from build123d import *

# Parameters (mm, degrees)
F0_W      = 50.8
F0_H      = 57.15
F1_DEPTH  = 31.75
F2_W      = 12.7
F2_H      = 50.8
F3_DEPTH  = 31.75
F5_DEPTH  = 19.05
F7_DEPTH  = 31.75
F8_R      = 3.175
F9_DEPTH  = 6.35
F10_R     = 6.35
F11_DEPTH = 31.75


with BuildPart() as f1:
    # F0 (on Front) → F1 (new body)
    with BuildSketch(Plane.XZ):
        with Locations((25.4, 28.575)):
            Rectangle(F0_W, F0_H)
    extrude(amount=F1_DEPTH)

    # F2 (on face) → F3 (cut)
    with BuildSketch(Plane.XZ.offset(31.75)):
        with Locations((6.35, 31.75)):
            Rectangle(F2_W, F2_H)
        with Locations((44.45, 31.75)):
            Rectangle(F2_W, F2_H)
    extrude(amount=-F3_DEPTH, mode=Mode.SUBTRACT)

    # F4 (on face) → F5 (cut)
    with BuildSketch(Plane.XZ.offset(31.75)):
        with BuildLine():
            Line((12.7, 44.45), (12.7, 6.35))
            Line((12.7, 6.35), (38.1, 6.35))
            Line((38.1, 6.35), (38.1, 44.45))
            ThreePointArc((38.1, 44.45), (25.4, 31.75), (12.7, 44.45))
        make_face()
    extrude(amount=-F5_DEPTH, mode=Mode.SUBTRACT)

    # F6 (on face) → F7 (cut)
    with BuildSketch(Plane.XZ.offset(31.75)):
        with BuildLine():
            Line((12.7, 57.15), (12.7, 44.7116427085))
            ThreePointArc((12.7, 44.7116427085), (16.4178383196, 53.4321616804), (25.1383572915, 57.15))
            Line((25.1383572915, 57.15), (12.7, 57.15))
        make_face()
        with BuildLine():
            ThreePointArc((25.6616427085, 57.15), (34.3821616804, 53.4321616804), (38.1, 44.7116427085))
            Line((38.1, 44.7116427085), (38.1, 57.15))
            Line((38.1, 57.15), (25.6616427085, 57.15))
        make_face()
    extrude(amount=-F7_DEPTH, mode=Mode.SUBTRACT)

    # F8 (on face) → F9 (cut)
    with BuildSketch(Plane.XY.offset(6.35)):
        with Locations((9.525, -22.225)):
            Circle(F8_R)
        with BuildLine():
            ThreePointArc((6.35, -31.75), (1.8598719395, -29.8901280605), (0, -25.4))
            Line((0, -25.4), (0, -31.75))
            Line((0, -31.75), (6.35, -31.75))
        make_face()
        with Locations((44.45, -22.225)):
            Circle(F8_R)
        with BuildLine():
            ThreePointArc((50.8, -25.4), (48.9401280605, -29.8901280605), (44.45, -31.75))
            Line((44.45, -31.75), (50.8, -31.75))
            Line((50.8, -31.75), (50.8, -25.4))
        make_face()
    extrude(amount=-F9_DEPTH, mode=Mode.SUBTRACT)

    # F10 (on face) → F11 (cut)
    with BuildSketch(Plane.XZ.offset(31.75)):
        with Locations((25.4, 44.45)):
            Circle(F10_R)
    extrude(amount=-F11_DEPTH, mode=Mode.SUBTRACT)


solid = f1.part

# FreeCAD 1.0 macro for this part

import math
import FreeCAD as App
import Part
import Sketcher
from FreeCAD import Vector
Q = App.Units.Quantity


def add_polygon(sketch, points):
    """Adds a closed chain of lines whose ends are joined by coincident constraints."""
    first, n = sketch.GeometryCount, len(points)
    for a, b in zip(points, points[1:] + points[:1]):
        sketch.addGeometry(Part.LineSegment(App.Vector(*a, 0), App.Vector(*b, 0)), False)
    for i in range(n):
        sketch.addConstraint(Sketcher.Constraint("Coincident", first + i, 2, first + (i + 1) % n, 1))

doc = App.newDocument("Part")
body = doc.addObject("PartDesign::Body", "Body")

# Sketch on XZ plane
sketch1 = doc.addObject("Sketcher::SketchObject", "Sketch")
body.addObject(sketch1)
sketch1.AttachmentSupport = (doc.XZ_Plane, [""])
sketch1.MapMode = "FlatFace"
add_polygon(sketch1, [(0, 57), (0, 0), (51, 0), (51, 57)])  # lines 0-3
sketch1.addConstraint([
    Sketcher.Constraint("Vertical", 0),
    Sketcher.Constraint("Horizontal", 1),
    Sketcher.Constraint("Vertical", 2),
    Sketcher.Constraint("Horizontal", 3),
    Sketcher.Constraint("Coincident", 0, 2, -1, 1),
    Sketcher.Constraint("DistanceX", 1, 1, 1, 2, Q("2 in")),
    Sketcher.Constraint("DistanceY", 0, 2, 0, 1, Q("2.25 in")),
])
pad1 = doc.addObject("PartDesign::Pad", "Pad")
body.addObject(pad1)
pad1.Profile = sketch1
pad1.Length = Q("1.25 in")

# Sketch on XZ plane
sketch2 = doc.addObject("Sketcher::SketchObject", "Sketch001")
body.addObject(sketch2)
sketch2.AttachmentSupport = (doc.XZ_Plane, [""])
sketch2.MapMode = "FlatFace"
sketch2.AttachmentOffset = App.Placement(Vector(0, 0, 1.25 * 25.4), App.Rotation())
add_polygon(sketch2, [(0, 57), (0, 6), (13, 6), (13, 57)])  # lines 0-3
add_polygon(sketch2, [(38, 57), (38, 6), (51, 6), (51, 57)])  # lines 4-7
sketch2.addConstraint([
    Sketcher.Constraint("Vertical", 0),
    Sketcher.Constraint("Horizontal", 1),
    Sketcher.Constraint("Vertical", 2),
    Sketcher.Constraint("Horizontal", 3),
    Sketcher.Constraint("Vertical", 4),
    Sketcher.Constraint("Horizontal", 5),
    Sketcher.Constraint("Vertical", 6),
    Sketcher.Constraint("Horizontal", 7),
    Sketcher.Constraint("PointOnObject", 0, 2, -2),
    Sketcher.Constraint("Horizontal", 1, 2, 4, 2),
    Sketcher.Constraint("Horizontal", 3, 2, 6, 2),
    Sketcher.Constraint("Equal", 3, 5),
    Sketcher.Constraint("DistanceY", 0, 2, 0, 1, Q("2 in")),
    Sketcher.Constraint("DistanceX", 1, 1, 1, 2, Q("0.5 in")),
    Sketcher.Constraint("DistanceX", -1, 1, 5, 2, Q("2 in")),
    Sketcher.Constraint("DistanceY", -1, 1, 0, 2, Q("0.25 in")),
])
pocket1 = doc.addObject("PartDesign::Pocket", "Pocket")
body.addObject(pocket1)
pocket1.Profile = sketch2
pocket1.Length = Q("1.25 in")

# Sketch on XZ plane
sketch3 = doc.addObject("Sketcher::SketchObject", "Sketch002")
body.addObject(sketch3)
sketch3.AttachmentSupport = (doc.XZ_Plane, [""])
sketch3.MapMode = "FlatFace"
sketch3.AttachmentOffset = App.Placement(Vector(0, 0, 1.25 * 25.4), App.Rotation())
sketch3.addGeometry([
    Part.LineSegment(Vector(13, 44, 0), Vector(13, 6, 0)),
    Part.LineSegment(Vector(13, 6, 0), Vector(38, 6, 0)),
    Part.LineSegment(Vector(38, 6, 0), Vector(38, 44, 0)),
    Part.ArcOfCircle(Part.Circle(Vector(25, 44, 0), Vector(0, 0, 1), 13), math.radians(180), math.radians(360)),
], False)
sketch3.addConstraint([
    Sketcher.Constraint("Coincident", 0, 2, 1, 1),
    Sketcher.Constraint("Coincident", 1, 2, 2, 1),
    Sketcher.Constraint("Tangent", 2, 2, 3, 2),
    Sketcher.Constraint("Tangent", 3, 1, 0, 1),
    Sketcher.Constraint("Vertical", 0),
    Sketcher.Constraint("Horizontal", 1),
    Sketcher.Constraint("Vertical", 2),
    Sketcher.Constraint("Radius", 3, Q("0.5 in")),
    Sketcher.Constraint("DistanceY", 0, 2, 0, 1, Q("1.5 in")),
    Sketcher.Constraint("DistanceX", -1, 1, 3, 3, Q("1 in")),
    Sketcher.Constraint("DistanceY", -1, 1, 3, 3, Q("1.75 in")),
])
pocket2 = doc.addObject("PartDesign::Pocket", "Pocket001")
body.addObject(pocket2)
pocket2.Profile = sketch3
pocket2.Length = Q("0.75 in")

# Sketch on XZ plane
sketch4 = doc.addObject("Sketcher::SketchObject", "Sketch003")
body.addObject(sketch4)
sketch4.AttachmentSupport = (doc.XZ_Plane, [""])
sketch4.MapMode = "FlatFace"
sketch4.AttachmentOffset = App.Placement(Vector(0, 0, 1.25 * 25.4), App.Rotation())
sketch4.addGeometry([
    Part.LineSegment(Vector(13, 57, 0), Vector(13, 45, 0)),  # 0
    Part.ArcOfCircle(Part.Circle(Vector(25, 44, 0), Vector(0, 0, 1), 13), math.radians(91), math.radians(179)),  # 1
    Part.LineSegment(Vector(25, 57, 0), Vector(13, 57, 0)),  # 2
    Part.ArcOfCircle(Part.Circle(Vector(25, 44, 0), Vector(0, 0, 1), 13), math.radians(1), math.radians(89)),  # 3
    Part.LineSegment(Vector(38, 45, 0), Vector(38, 57, 0)),  # 4
    Part.LineSegment(Vector(38, 57, 0), Vector(26, 57, 0)),  # 5
], False)
sketch4.addConstraint([
    Sketcher.Constraint("Coincident", 0, 2, 1, 2),
    Sketcher.Constraint("Coincident", 1, 1, 2, 1),
    Sketcher.Constraint("Coincident", 2, 2, 0, 1),
    Sketcher.Constraint("Coincident", 3, 1, 4, 1),
    Sketcher.Constraint("Coincident", 4, 2, 5, 1),
    Sketcher.Constraint("Coincident", 5, 2, 3, 2),
    Sketcher.Constraint("Vertical", 0),
    Sketcher.Constraint("Horizontal", 2),
    Sketcher.Constraint("Vertical", 4),
    Sketcher.Constraint("Horizontal", 5),
    Sketcher.Constraint("Coincident", 3, 3, 1, 3),
    Sketcher.Constraint("Equal", 1, 3),
    Sketcher.Constraint("Horizontal", 0, 2, 3, 1),
    Sketcher.Constraint("Horizontal", 2, 2, 4, 2),
    Sketcher.Constraint("Equal", 5, 0),
    Sketcher.Constraint("DistanceX", -1, 1, 1, 3, Q("1 in")),
    Sketcher.Constraint("DistanceX", 0, 2, 3, 1, Q("1 in")),
    Sketcher.Constraint("DistanceY", -1, 1, 1, 3, Q("1.75 in")),
    Sketcher.Constraint("Radius", 1, Q("12.702695 mm")),
])
pocket3 = doc.addObject("PartDesign::Pocket", "Pocket002")
body.addObject(pocket3)
pocket3.Profile = sketch4
pocket3.Length = Q("1.25 in")

# Sketch on XY plane
sketch5 = doc.addObject("Sketcher::SketchObject", "Sketch004")
body.addObject(sketch5)
sketch5.AttachmentSupport = (doc.XY_Plane, [""])
sketch5.MapMode = "FlatFace"
sketch5.AttachmentOffset = App.Placement(Vector(0, 0, 0.25 * 25.4), App.Rotation())
sketch5.addGeometry([
    Part.Circle(Vector(9.5, -22.2, 0), Vector(0, 0, 1), 3.2),  # 0
    Part.ArcOfCircle(Part.Circle(Vector(6.3, -25.4, 0), Vector(0, 0, 1), 6.3), math.radians(180), math.radians(270)),  # 1
    Part.LineSegment(Vector(0, -25.4, 0), Vector(0, -31.8, 0)),  # 2
    Part.LineSegment(Vector(0, -31.8, 0), Vector(6.3, -31.8, 0)),  # 3
    Part.Circle(Vector(44.5, -22.2, 0), Vector(0, 0, 1), 3.2),  # 4
    Part.ArcOfCircle(Part.Circle(Vector(44.5, -25.4, 0), Vector(0, 0, 1), 6.3), math.radians(-90), math.radians(0)),  # 5
    Part.LineSegment(Vector(44.5, -31.8, 0), Vector(50.8, -31.8, 0)),  # 6
    Part.LineSegment(Vector(50.8, -31.8, 0), Vector(50.8, -25.4, 0)),  # 7
], False)
sketch5.addConstraint([
    Sketcher.Constraint("Tangent", 1, 1, 2, 1),
    Sketcher.Constraint("Coincident", 2, 2, 3, 1),
    Sketcher.Constraint("Tangent", 3, 2, 1, 2),
    Sketcher.Constraint("Tangent", 5, 1, 6, 1),
    Sketcher.Constraint("Coincident", 6, 2, 7, 1),
    Sketcher.Constraint("Tangent", 7, 2, 5, 2),
    Sketcher.Constraint("Vertical", 2),
    Sketcher.Constraint("Horizontal", 3),
    Sketcher.Constraint("Horizontal", 6),
    Sketcher.Constraint("Vertical", 7),
    Sketcher.Constraint("Equal", 0, 4),
    Sketcher.Constraint("Equal", 1, 5),
    Sketcher.Constraint("PointOnObject", 1, 1, -2),
    Sketcher.Constraint("Horizontal", 0, 3, 4, 3),
    Sketcher.Constraint("Horizontal", 1, 3, 5, 3),
    Sketcher.Constraint("Vertical", 4, 3, 5, 3),
    Sketcher.Constraint("Diameter", 0, Q("0.25 in")),
    Sketcher.Constraint("Radius", 1, Q("0.25 in")),
    Sketcher.Constraint("DistanceY", 1, 3, -1, 1, Q("1 in")),
    Sketcher.Constraint("DistanceX", -1, 1, 6, 2, Q("2 in")),
    Sketcher.Constraint("DistanceX", -1, 1, 0, 3, Q("0.375 in")),
    Sketcher.Constraint("DistanceY", 0, 3, -1, 1, Q("0.875 in")),
])
pocket4 = doc.addObject("PartDesign::Pocket", "Pocket003")
body.addObject(pocket4)
pocket4.Profile = sketch5
pocket4.Length = Q("0.25 in")

# Sketch on XZ plane
sketch6 = doc.addObject("Sketcher::SketchObject", "Sketch005")
body.addObject(sketch6)
sketch6.AttachmentSupport = (doc.XZ_Plane, [""])
sketch6.MapMode = "FlatFace"
sketch6.AttachmentOffset = App.Placement(Vector(0, 0, 1.25 * 25.4), App.Rotation())
sketch6.addGeometry(Part.Circle(Vector(25, 44, 0), Vector(0, 0, 1), 6), False)
sketch6.addConstraint([
    Sketcher.Constraint("Diameter", 0, Q("0.5 in")),
    Sketcher.Constraint("DistanceX", -1, 1, 0, 3, Q("1 in")),
    Sketcher.Constraint("DistanceY", -1, 1, 0, 3, Q("1.75 in")),
])
pocket5 = doc.addObject("PartDesign::Pocket", "Pocket004")
body.addObject(pocket5)
pocket5.Profile = sketch6
pocket5.Length = Q("1.25 in")

doc.recompute()
